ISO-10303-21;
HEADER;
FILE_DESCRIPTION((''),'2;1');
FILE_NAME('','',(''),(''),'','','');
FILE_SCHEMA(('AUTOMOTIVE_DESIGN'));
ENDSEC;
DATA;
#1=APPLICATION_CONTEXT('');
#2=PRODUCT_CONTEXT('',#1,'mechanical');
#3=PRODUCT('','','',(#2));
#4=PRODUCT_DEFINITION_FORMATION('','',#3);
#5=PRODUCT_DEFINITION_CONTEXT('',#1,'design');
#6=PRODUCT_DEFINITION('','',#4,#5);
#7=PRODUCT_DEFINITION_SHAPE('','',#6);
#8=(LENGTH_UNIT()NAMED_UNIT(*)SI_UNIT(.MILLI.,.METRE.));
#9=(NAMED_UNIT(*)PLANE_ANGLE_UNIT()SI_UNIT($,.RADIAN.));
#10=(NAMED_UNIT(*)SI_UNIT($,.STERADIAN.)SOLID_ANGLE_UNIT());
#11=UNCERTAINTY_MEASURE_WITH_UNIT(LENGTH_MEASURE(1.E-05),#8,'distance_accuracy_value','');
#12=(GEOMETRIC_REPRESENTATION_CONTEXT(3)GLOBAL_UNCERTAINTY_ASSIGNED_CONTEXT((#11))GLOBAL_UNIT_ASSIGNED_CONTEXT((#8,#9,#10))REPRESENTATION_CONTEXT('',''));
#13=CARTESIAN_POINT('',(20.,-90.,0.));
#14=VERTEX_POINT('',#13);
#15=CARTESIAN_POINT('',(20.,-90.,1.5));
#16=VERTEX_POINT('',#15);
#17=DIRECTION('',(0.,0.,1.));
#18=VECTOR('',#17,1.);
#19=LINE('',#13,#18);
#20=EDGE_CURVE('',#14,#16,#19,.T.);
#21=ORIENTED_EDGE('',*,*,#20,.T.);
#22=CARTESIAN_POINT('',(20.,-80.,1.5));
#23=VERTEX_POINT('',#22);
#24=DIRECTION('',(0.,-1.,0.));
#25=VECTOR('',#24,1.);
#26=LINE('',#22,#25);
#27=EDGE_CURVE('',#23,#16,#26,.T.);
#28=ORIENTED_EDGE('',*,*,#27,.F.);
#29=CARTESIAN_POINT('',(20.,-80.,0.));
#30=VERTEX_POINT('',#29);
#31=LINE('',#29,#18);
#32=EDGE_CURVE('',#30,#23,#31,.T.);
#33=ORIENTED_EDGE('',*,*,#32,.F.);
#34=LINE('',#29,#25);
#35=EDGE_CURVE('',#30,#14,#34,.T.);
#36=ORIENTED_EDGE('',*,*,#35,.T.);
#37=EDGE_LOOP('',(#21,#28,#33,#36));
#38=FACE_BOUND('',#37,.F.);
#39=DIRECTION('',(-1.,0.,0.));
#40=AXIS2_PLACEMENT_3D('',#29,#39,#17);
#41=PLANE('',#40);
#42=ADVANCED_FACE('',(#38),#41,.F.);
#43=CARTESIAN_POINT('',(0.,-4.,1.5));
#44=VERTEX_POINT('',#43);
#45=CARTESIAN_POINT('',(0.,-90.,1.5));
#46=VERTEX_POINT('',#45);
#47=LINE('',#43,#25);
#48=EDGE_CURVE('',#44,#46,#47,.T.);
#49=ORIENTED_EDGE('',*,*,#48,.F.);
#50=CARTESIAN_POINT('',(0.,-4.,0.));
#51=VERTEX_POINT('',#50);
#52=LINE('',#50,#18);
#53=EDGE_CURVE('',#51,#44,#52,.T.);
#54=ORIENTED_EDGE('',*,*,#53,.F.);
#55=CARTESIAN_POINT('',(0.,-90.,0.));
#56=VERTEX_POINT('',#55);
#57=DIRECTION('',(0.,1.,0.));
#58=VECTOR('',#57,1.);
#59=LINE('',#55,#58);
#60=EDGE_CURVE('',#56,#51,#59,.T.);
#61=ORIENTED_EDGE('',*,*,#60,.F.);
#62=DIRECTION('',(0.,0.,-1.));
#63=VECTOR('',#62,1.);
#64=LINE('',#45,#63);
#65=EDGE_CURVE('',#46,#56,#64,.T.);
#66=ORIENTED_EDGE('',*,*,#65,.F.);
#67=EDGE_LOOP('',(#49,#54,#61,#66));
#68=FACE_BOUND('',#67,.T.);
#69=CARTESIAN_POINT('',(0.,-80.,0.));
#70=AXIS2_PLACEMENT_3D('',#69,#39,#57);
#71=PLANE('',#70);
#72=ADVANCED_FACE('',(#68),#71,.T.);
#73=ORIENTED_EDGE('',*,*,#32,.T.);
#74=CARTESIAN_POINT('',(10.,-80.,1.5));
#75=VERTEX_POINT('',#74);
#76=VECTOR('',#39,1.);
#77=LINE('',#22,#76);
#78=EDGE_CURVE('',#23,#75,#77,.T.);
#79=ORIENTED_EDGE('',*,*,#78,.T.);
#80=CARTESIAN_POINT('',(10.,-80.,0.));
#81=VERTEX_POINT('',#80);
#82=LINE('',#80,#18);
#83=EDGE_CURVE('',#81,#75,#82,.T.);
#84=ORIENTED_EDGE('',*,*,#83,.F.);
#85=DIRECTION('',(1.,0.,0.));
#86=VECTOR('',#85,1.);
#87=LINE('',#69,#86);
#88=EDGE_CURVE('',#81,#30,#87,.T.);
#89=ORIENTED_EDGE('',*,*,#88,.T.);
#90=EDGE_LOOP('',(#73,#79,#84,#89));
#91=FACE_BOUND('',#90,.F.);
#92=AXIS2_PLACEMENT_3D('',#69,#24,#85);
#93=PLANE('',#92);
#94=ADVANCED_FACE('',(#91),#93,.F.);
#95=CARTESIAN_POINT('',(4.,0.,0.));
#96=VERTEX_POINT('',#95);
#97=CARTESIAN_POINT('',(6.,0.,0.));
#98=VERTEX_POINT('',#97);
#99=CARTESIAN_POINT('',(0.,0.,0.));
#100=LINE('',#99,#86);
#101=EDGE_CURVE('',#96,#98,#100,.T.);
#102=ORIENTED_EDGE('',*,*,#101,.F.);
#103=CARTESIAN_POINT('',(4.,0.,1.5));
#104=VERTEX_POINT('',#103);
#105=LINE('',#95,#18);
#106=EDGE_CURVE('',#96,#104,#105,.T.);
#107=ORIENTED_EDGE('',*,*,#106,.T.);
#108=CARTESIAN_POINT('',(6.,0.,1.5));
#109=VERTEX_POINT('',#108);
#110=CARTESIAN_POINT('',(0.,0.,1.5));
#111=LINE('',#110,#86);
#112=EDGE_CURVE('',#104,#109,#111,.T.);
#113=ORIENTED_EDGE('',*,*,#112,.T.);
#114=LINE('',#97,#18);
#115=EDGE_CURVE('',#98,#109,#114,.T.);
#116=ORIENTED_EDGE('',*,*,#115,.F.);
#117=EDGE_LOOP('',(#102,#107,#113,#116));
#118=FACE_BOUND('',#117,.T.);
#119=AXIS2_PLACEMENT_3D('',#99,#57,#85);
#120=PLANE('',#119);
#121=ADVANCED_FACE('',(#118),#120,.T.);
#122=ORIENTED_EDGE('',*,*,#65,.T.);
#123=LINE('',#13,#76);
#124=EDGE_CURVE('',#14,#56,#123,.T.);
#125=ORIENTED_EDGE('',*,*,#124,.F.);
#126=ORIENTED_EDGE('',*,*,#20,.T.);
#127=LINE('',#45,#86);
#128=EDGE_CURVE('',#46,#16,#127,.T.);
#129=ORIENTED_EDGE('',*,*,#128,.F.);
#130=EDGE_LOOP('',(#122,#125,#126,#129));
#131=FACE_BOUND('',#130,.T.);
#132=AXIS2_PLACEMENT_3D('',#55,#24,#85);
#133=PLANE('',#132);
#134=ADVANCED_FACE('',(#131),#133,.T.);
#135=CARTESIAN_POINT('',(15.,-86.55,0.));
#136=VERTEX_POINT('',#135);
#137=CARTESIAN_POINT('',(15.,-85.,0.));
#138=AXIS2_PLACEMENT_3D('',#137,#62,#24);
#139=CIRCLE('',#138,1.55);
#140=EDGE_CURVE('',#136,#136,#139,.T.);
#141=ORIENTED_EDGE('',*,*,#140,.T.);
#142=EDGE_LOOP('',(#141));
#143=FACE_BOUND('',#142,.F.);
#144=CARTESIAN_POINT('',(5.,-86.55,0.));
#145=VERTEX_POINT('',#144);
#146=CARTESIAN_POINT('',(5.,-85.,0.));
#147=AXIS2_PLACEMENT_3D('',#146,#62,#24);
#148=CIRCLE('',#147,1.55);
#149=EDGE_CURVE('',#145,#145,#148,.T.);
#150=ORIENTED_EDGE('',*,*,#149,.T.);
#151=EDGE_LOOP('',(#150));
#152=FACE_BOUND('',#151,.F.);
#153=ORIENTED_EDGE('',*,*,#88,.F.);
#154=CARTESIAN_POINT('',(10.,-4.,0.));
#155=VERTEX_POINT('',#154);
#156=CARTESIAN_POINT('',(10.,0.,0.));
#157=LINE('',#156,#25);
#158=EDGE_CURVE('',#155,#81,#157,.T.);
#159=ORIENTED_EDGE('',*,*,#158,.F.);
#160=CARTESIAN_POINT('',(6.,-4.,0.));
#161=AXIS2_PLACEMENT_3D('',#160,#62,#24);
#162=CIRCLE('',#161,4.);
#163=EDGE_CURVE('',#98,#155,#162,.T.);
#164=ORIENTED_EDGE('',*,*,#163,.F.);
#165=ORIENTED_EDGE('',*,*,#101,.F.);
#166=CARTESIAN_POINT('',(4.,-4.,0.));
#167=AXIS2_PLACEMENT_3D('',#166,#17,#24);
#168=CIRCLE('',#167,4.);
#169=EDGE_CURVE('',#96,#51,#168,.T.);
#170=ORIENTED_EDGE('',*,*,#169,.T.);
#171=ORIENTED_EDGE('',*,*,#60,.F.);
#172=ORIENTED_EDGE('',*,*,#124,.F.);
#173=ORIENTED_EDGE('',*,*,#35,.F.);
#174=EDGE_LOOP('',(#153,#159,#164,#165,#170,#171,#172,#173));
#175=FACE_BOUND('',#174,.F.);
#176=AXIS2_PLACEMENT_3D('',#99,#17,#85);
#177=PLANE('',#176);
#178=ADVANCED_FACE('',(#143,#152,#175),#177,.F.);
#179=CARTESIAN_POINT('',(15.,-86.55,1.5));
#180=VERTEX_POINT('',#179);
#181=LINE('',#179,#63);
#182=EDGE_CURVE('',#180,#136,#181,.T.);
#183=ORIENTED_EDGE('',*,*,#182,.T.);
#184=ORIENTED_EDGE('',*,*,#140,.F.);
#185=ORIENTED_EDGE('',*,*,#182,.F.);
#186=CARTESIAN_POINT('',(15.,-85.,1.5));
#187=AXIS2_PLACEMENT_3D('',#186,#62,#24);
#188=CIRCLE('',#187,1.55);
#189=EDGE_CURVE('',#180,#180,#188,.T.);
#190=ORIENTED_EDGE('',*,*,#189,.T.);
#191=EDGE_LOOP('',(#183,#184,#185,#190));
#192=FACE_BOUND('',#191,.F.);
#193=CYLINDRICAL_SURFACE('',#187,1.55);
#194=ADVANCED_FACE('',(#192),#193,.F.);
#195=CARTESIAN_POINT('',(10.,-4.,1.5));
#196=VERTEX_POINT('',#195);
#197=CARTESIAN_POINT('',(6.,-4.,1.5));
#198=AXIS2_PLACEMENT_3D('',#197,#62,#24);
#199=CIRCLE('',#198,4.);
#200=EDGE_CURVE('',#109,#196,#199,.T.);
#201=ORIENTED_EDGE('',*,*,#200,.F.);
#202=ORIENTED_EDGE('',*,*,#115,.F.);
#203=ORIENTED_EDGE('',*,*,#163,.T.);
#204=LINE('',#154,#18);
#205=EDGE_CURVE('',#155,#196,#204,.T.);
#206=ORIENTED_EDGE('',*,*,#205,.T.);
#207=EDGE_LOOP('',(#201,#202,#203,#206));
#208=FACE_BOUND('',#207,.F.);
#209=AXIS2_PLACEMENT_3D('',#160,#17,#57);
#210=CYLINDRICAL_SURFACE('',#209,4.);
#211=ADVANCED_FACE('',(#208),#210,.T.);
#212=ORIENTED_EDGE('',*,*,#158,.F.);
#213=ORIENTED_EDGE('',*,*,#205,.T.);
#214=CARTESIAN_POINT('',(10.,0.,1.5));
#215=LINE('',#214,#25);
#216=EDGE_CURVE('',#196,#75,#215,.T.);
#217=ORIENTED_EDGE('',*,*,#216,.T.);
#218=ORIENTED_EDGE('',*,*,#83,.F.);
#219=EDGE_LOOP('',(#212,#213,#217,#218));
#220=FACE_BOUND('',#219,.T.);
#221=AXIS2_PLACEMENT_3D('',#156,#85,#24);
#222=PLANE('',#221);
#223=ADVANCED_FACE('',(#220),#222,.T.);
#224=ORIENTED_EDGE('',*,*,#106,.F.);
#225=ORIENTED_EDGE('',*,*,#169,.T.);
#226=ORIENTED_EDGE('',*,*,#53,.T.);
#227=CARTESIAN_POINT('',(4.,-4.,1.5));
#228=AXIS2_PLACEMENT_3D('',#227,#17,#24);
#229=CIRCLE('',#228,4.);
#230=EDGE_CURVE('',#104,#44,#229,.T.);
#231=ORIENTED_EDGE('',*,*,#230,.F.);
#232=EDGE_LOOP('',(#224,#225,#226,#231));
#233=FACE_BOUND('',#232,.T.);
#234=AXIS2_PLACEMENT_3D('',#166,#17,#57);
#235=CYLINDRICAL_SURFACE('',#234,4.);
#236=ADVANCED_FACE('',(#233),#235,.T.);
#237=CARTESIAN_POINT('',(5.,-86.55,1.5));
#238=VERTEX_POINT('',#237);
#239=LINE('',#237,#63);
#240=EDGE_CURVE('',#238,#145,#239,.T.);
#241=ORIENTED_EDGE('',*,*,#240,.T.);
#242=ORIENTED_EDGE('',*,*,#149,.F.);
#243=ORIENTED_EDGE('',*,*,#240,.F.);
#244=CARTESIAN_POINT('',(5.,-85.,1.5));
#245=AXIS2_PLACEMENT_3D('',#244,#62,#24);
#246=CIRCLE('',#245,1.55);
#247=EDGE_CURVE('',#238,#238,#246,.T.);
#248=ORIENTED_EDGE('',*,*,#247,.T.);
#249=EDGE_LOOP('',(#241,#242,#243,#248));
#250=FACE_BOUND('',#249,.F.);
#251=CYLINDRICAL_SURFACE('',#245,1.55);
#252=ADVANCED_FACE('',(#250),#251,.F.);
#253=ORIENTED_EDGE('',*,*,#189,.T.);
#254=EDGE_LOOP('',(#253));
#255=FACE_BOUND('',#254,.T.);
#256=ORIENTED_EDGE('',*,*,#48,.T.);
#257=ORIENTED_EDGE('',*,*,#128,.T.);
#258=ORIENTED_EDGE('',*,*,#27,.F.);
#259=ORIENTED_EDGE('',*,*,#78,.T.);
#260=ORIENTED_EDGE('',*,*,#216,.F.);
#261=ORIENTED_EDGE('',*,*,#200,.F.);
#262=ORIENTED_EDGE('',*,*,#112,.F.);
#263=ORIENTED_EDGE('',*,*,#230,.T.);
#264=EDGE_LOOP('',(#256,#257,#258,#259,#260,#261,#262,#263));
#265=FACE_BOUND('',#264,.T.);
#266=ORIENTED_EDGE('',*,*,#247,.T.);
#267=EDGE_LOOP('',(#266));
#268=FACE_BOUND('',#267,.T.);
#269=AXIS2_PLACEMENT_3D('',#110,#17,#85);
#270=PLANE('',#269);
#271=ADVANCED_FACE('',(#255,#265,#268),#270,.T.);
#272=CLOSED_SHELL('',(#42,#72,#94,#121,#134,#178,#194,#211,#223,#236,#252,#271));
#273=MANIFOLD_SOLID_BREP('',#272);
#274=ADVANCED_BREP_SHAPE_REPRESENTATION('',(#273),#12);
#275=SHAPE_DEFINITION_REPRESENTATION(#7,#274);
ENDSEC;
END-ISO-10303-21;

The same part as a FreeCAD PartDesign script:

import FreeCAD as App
import Part
import Sketcher
from FreeCAD import Vector
Q = App.Units.Quantity


def edges_at(feature, points):
    """Names of the edges that pass closest to the given points."""
    edges = feature.Shape.Edges
    near = lambda p: min(range(len(edges)), key=lambda i: edges[i].distToShape(Part.Vertex(*p))[0])
    return sorted({f"Edge{near(p) + 1}" for p in points})

doc = App.newDocument("Part")
body = doc.addObject("PartDesign::Body", "Body")

sketch1 = body.newObject("Sketcher::SketchObject", "Sketch")
sketch1.AttachmentSupport = (doc.getObject("XY_Plane"), [""])
sketch1.MapMode = "FlatFace"
sketch1.addGeometry(Part.LineSegment(Vector(10, 0, 0), Vector(0, 0, 0)), False)
sketch1.addGeometry(Part.LineSegment(Vector(0, 0, 0), Vector(0, -80, 0)), False)
sketch1.addGeometry(Part.LineSegment(Vector(0, -80, 0), Vector(10, -80, 0)), False)
sketch1.addGeometry(Part.LineSegment(Vector(10, -80, 0), Vector(10, 0, 0)), False)
sketch1.addConstraint(Sketcher.Constraint("Coincident", 0, 2, 1, 1))
sketch1.addConstraint(Sketcher.Constraint("Coincident", 1, 2, 2, 1))
sketch1.addConstraint(Sketcher.Constraint("Coincident", 2, 2, 3, 1))
sketch1.addConstraint(Sketcher.Constraint("Coincident", 3, 2, 0, 1))
sketch1.addConstraint(Sketcher.Constraint("Horizontal", 0))
sketch1.addConstraint(Sketcher.Constraint("Vertical", 1))
sketch1.addConstraint(Sketcher.Constraint("Horizontal", 2))
sketch1.addConstraint(Sketcher.Constraint("Vertical", 3))
sketch1.addConstraint(Sketcher.Constraint("Coincident", 0, 2, -1, 1))
sketch1.addConstraint(Sketcher.Constraint("DistanceX", 0, 2, 0, 1, Q("10 mm")))
sketch1.addConstraint(Sketcher.Constraint("DistanceY", 1, 2, 1, 1, Q("80 mm")))
pad1 = body.newObject("PartDesign::Pad", "Pad")
pad1.Profile = sketch1
pad1.Length = 1.5
doc.recompute()

fillet = body.newObject("PartDesign::Fillet", "Fillet")
fillet.Base = (pad1, edges_at(pad1, [(10, 0, 0.75), (0, 0, 0.75)]))
fillet.Radius = 4

sketch2 = body.newObject("Sketcher::SketchObject", "Sketch001")
sketch2.AttachmentSupport = (doc.getObject("XZ_Plane"), [""])
sketch2.MapMode = "FlatFace"
sketch2.AttachmentOffset = App.Placement(Vector(0, 0, 80), App.Rotation())
sketch2.addGeometry(Part.LineSegment(Vector(0, 1.5, 0), Vector(0, 0, 0)), False)
sketch2.addGeometry(Part.LineSegment(Vector(0, 0, 0), Vector(20, 0, 0)), False)
sketch2.addGeometry(Part.LineSegment(Vector(20, 0, 0), Vector(20, 1.5, 0)), False)
sketch2.addGeometry(Part.LineSegment(Vector(20, 1.5, 0), Vector(0, 1.5, 0)), False)
sketch2.addConstraint(Sketcher.Constraint("Coincident", 0, 2, 1, 1))
sketch2.addConstraint(Sketcher.Constraint("Coincident", 1, 2, 2, 1))
sketch2.addConstraint(Sketcher.Constraint("Coincident", 2, 2, 3, 1))
sketch2.addConstraint(Sketcher.Constraint("Coincident", 3, 2, 0, 1))
sketch2.addConstraint(Sketcher.Constraint("Vertical", 0))
sketch2.addConstraint(Sketcher.Constraint("Horizontal", 1))
sketch2.addConstraint(Sketcher.Constraint("Vertical", 2))
sketch2.addConstraint(Sketcher.Constraint("Horizontal", 3))
sketch2.addConstraint(Sketcher.Constraint("Coincident", 0, 2, -1, 1))
sketch2.addConstraint(Sketcher.Constraint("DistanceX", 1, 1, 1, 2, Q("20 mm")))
sketch2.addConstraint(Sketcher.Constraint("DistanceY", 0, 2, 0, 1, Q("1.5 mm")))
pad2 = body.newObject("PartDesign::Pad", "Pad001")
pad2.Profile = sketch2
pad2.Length = 10

sketch3 = body.newObject("Sketcher::SketchObject", "Sketch002")
sketch3.AttachmentSupport = (doc.getObject("XY_Plane"), [""])
sketch3.MapMode = "FlatFace"
sketch3.AttachmentOffset = App.Placement(Vector(0, 0, 1.5), App.Rotation())
sketch3.addGeometry(Part.Circle(Vector(5, -85, 0), Vector(0, 0, 1), 1.55), False)
sketch3.addGeometry(Part.Circle(Vector(15, -85, 0), Vector(0, 0, 1), 1.55), False)
sketch3.addConstraint(Sketcher.Constraint("Equal", 0, 1))
sketch3.addConstraint(Sketcher.Constraint("Horizontal", 0, 3, 1, 3))
sketch3.addConstraint(Sketcher.Constraint("Diameter", 0, Q("3.1 mm")))
sketch3.addConstraint(Sketcher.Constraint("DistanceX", -1, 1, 0, 3, Q("5 mm")))
sketch3.addConstraint(Sketcher.Constraint("DistanceY", 0, 3, -1, 1, Q("85 mm")))
sketch3.addConstraint(Sketcher.Constraint("DistanceX", -1, 1, 1, 3, Q("15 mm")))
doc.recompute()
hole = body.newObject("PartDesign::Hole", "Hole")
hole.Profile = sketch3
hole.ThreadType = "None"
hole.Diameter = 3.1
hole.DepthType = "ThroughAll"

doc.recompute()
